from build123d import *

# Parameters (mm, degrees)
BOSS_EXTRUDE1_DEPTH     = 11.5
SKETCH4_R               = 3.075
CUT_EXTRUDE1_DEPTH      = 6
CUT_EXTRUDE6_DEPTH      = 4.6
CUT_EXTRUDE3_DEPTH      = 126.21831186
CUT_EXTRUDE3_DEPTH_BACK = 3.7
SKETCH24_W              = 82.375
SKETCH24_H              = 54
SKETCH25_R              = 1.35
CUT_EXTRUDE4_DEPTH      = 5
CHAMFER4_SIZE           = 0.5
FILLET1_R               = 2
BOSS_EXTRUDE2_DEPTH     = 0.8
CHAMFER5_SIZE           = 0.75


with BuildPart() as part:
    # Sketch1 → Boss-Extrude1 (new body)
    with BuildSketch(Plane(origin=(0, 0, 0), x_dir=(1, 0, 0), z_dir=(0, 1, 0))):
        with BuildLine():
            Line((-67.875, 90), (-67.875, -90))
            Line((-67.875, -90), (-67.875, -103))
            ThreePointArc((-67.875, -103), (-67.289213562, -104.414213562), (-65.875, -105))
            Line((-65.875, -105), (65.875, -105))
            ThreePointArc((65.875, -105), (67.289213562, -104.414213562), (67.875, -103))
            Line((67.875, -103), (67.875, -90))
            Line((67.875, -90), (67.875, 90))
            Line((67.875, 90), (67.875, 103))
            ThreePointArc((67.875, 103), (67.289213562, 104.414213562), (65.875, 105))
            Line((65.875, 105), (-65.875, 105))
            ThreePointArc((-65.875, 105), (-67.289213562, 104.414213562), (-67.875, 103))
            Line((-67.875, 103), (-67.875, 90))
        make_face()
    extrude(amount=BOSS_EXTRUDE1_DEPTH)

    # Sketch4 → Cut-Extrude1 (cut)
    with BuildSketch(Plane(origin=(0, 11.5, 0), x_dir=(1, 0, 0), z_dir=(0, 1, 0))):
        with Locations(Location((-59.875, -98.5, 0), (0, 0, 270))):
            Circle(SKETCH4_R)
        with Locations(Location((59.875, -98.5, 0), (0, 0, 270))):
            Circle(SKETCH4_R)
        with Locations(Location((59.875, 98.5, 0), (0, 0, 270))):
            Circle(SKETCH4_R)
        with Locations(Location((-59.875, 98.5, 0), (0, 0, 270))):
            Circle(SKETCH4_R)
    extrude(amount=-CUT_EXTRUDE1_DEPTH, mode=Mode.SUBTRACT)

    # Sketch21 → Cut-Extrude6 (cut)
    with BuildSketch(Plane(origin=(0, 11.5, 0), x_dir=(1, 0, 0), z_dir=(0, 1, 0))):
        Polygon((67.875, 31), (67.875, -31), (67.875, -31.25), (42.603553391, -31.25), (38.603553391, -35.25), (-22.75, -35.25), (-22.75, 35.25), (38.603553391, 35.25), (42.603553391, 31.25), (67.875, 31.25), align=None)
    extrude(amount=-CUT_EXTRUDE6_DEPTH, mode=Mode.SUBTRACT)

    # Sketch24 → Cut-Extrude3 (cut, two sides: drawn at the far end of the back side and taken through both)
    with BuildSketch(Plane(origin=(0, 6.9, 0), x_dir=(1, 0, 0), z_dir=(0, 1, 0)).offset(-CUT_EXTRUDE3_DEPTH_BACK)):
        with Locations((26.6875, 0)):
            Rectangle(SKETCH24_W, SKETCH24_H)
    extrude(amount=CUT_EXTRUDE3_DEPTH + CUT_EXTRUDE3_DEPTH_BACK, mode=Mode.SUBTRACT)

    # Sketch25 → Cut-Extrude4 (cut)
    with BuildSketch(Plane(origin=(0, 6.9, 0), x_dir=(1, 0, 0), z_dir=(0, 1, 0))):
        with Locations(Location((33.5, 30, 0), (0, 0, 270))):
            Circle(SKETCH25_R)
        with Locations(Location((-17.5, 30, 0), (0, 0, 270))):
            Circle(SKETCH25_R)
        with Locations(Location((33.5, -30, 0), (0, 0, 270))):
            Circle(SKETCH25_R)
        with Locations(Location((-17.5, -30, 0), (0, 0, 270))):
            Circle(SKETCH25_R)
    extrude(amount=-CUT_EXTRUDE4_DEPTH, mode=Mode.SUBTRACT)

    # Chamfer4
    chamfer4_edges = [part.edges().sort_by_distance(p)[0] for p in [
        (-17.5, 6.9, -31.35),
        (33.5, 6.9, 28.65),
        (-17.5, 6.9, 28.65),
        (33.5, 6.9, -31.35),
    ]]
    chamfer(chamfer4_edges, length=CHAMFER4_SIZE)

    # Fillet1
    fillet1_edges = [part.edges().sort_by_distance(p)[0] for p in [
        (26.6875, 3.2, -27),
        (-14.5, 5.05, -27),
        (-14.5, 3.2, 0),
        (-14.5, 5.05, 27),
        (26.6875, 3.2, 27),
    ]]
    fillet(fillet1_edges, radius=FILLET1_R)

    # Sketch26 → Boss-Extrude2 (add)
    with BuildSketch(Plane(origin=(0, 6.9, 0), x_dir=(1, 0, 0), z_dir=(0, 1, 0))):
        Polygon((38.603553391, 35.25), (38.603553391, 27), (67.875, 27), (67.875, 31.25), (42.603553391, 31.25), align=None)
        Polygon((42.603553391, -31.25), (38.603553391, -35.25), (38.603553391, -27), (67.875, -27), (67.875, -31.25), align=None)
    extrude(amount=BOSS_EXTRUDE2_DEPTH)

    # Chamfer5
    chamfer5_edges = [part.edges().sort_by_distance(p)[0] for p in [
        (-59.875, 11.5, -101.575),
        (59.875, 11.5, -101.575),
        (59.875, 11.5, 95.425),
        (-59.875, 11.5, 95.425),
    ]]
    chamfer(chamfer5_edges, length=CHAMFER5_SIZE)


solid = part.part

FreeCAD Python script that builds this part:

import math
import FreeCAD as App
import Part
import Sketcher

V = App.Vector


def edges_at(feature, points):
    """Names of the edges that pass closest to the given points."""
    edges = feature.Shape.Edges
    near = lambda p: min(range(len(edges)), key=lambda i: edges[i].distToShape(Part.Vertex(*p))[0])
    return sorted({f"Edge{near(p) + 1}" for p in points})

doc = App.newDocument("Part")
body = doc.addObject("PartDesign::Body", "Body")

# Sketch on XZ plane
sketch1 = doc.addObject("Sketcher::SketchObject", "Sketch")
body.addObject(sketch1)
sketch1.AttachmentSupport = (doc.XZ_Plane, [""])
sketch1.MapMode = "FlatFace"
sketch1.addGeometry([
    Part.ArcOfCircle(Part.Circle(V(-65.875, 103, 0), V(0, 0, 1), 2), math.radians(90), math.radians(180)),  # 0
    Part.LineSegment(V(-65.875, 105, 0), V(65.875, 105, 0)),  # 1
    Part.ArcOfCircle(Part.Circle(V(65.875, 103, 0), V(0, 0, 1), 2), math.radians(0), math.radians(90)),  # 2
    Part.LineSegment(V(67.875, 103, 0), V(67.875, -103, 0)),  # 3
    Part.ArcOfCircle(Part.Circle(V(65.875, -103, 0), V(0, 0, 1), 2), math.radians(-90), math.radians(0)),  # 4
    Part.LineSegment(V(65.875, -105, 0), V(-65.875, -105, 0)),  # 5
    Part.ArcOfCircle(Part.Circle(V(-65.875, -103, 0), V(0, 0, 1), 2), math.radians(-180), math.radians(-90)),  # 6
    Part.LineSegment(V(-67.875, -103, 0), V(-67.875, 103, 0)),  # 7
], False)
sketch1.addConstraint([
    Sketcher.Constraint("Tangent", 0, 1, 1, 1),
    Sketcher.Constraint("Tangent", 1, 2, 2, 2),
    Sketcher.Constraint("Tangent", 2, 1, 3, 1),
    Sketcher.Constraint("Tangent", 3, 2, 4, 2),
    Sketcher.Constraint("Tangent", 4, 1, 5, 1),
    Sketcher.Constraint("Tangent", 5, 2, 6, 2),
    Sketcher.Constraint("Tangent", 6, 1, 7, 1),
    Sketcher.Constraint("Tangent", 7, 2, 0, 2),
    Sketcher.Constraint("Horizontal", 1),
    Sketcher.Constraint("Vertical", 3),
    Sketcher.Constraint("Horizontal", 5),
    Sketcher.Constraint("Vertical", 7),
    Sketcher.Constraint("Equal", 0, 2),
    Sketcher.Constraint("Equal", 2, 4),
    Sketcher.Constraint("Equal", 4, 6),
    Sketcher.Constraint("Symmetric", 0, 3, 4, 3, -1, 1),
    Sketcher.Constraint("Radius", 0, 2.0),
    Sketcher.Constraint("DistanceY", 3, 2, 3, 1, 206.0),
    Sketcher.Constraint("DistanceX", 1, 1, 1, 2, 131.75),
])
pad1 = doc.addObject("PartDesign::Pad", "Pad")
body.addObject(pad1)
pad1.Profile = sketch1
pad1.Length = 11.5
pad1.Reversed = True

# Sketch on XZ plane
sketch2 = doc.addObject("Sketcher::SketchObject", "Sketch001")
body.addObject(sketch2)
sketch2.AttachmentSupport = (doc.XZ_Plane, [""])
sketch2.MapMode = "FlatFace"
sketch2.AttachmentOffset = App.Placement(V(0, 0, -11.5), App.Rotation())
sketch2.addGeometry([
    Part.Circle(V(-59.875, 98.5, 0), V(0, 0, 1), 3.075),
    Part.Circle(V(59.875, 98.5, 0), V(0, 0, 1), 3.075),
    Part.Circle(V(59.875, -98.5, 0), V(0, 0, 1), 3.075),
    Part.Circle(V(-59.875, -98.5, 0), V(0, 0, 1), 3.075),
], False)
sketch2.addConstraint([
    Sketcher.Constraint("Equal", 0, 1),
    Sketcher.Constraint("Equal", 1, 2),
    Sketcher.Constraint("Equal", 2, 3),
    Sketcher.Constraint("Symmetric", 0, 3, 2, 3, -1, 1),
    Sketcher.Constraint("Symmetric", 1, 3, 3, 3, -1, 1),
    Sketcher.Constraint("Symmetric", 0, 3, 1, 3, -2),
    Sketcher.Constraint("Diameter", 0, 6.15),
    Sketcher.Constraint("DistanceY", 2, 3, 1, 3, 197.0),
    Sketcher.Constraint("DistanceX", 0, 3, 1, 3, 119.75),
])
pocket1 = doc.addObject("PartDesign::Pocket", "Pocket")
body.addObject(pocket1)
pocket1.Profile = sketch2
pocket1.Length = 6
pocket1.Reversed = True

# Sketch on XZ plane
sketch3 = doc.addObject("Sketcher::SketchObject", "Sketch002")
body.addObject(sketch3)
sketch3.AttachmentSupport = (doc.XZ_Plane, [""])
sketch3.MapMode = "FlatFace"
sketch3.AttachmentOffset = App.Placement(V(0, 0, -11.5), App.Rotation())
sketch3.addGeometry([
    Part.LineSegment(V(67.875, 31.25, 0), V(67.875, -31.25, 0)),  # 0
    Part.LineSegment(V(67.875, -31.25, 0), V(42.603553, -31.25, 0)),  # 1
    Part.LineSegment(V(42.603553, -31.25, 0), V(38.603553, -35.25, 0)),  # 2
    Part.LineSegment(V(38.603553, -35.25, 0), V(-22.75, -35.25, 0)),  # 3
    Part.LineSegment(V(-22.75, -35.25, 0), V(-22.75, 35.25, 0)),  # 4
    Part.LineSegment(V(-22.75, 35.25, 0), V(38.603553, 35.25, 0)),  # 5
    Part.LineSegment(V(38.603553, 35.25, 0), V(42.603553, 31.25, 0)),  # 6
    Part.LineSegment(V(42.603553, 31.25, 0), V(67.875, 31.25, 0)),  # 7
], False)
sketch3.addConstraint([
    Sketcher.Constraint("Coincident", 0, 2, 1, 1),
    Sketcher.Constraint("Coincident", 1, 2, 2, 1),
    Sketcher.Constraint("Coincident", 2, 2, 3, 1),
    Sketcher.Constraint("Coincident", 3, 2, 4, 1),
    Sketcher.Constraint("Coincident", 4, 2, 5, 1),
    Sketcher.Constraint("Coincident", 5, 2, 6, 1),
    Sketcher.Constraint("Coincident", 6, 2, 7, 1),
    Sketcher.Constraint("Coincident", 7, 2, 0, 1),
    Sketcher.Constraint("Vertical", 0),
    Sketcher.Constraint("Horizontal", 1),
    Sketcher.Constraint("Horizontal", 3),
    Sketcher.Constraint("Vertical", 4),
    Sketcher.Constraint("Horizontal", 5),
    Sketcher.Constraint("Horizontal", 7),
    Sketcher.Constraint("Symmetric", 2, 2, 5, 2, -1),
    Sketcher.Constraint("Symmetric", 1, 2, 6, 2, -1),
    Sketcher.Constraint("Perpendicular", 2, 6),
    Sketcher.Constraint("DistanceY", 0, 2, 0, 1, 62.5),
    Sketcher.Constraint("DistanceY", 4, 1, 4, 2, 70.5),
    Sketcher.Constraint("DistanceX", 3, 2, -1, 1, 22.75),
    Sketcher.Constraint("DistanceX", -1, 1, 0, 2, 67.875),
    Sketcher.Constraint("DistanceX", 1, 2, 1, 1, 25.271447),
])
pocket2 = doc.addObject("PartDesign::Pocket", "Pocket001")
body.addObject(pocket2)
pocket2.Profile = sketch3
pocket2.Length = 4.6
pocket2.Reversed = True

# Sketch on XZ plane
sketch4 = doc.addObject("Sketcher::SketchObject", "Sketch003")
body.addObject(sketch4)
sketch4.AttachmentSupport = (doc.XZ_Plane, [""])
sketch4.MapMode = "FlatFace"
sketch4.AttachmentOffset = App.Placement(V(0, 0, -6.9), App.Rotation())
sketch4.addGeometry([
    Part.LineSegment(V(-14.5, -27, 0), V(-14.5, 27, 0)),
    Part.LineSegment(V(-14.5, 27, 0), V(67.875, 27, 0)),
    Part.LineSegment(V(67.875, 27, 0), V(67.875, -27, 0)),
    Part.LineSegment(V(67.875, -27, 0), V(-14.5, -27, 0)),
], False)
sketch4.addConstraint([
    Sketcher.Constraint("Coincident", 0, 2, 1, 1),
    Sketcher.Constraint("Coincident", 1, 2, 2, 1),
    Sketcher.Constraint("Coincident", 2, 2, 3, 1),
    Sketcher.Constraint("Coincident", 3, 2, 0, 1),
    Sketcher.Constraint("Vertical", 0),
    Sketcher.Constraint("Horizontal", 1),
    Sketcher.Constraint("Vertical", 2),
    Sketcher.Constraint("Horizontal", 3),
    Sketcher.Constraint("DistanceY", 0, 1, 0, 2, 54.0),
    Sketcher.Constraint("DistanceY", -1, 1, 0, 2, 27.0),
    Sketcher.Constraint("DistanceX", 0, 2, -1, 1, 14.5),
    Sketcher.Constraint("DistanceX", 1, 1, 1, 2, 82.375),
])
pocket3 = doc.addObject("PartDesign::Pocket", "Pocket002")
body.addObject(pocket3)
pocket3.Profile = sketch4
pocket3.Type = "TwoLengths"
pocket3.Length = 126.218312
pocket3.Length2 = 3.7

# Sketch on XZ plane
sketch5 = doc.addObject("Sketcher::SketchObject", "Sketch004")
body.addObject(sketch5)
sketch5.AttachmentSupport = (doc.XZ_Plane, [""])
sketch5.MapMode = "FlatFace"
sketch5.AttachmentOffset = App.Placement(V(0, 0, -6.9), App.Rotation())
sketch5.addGeometry([
    Part.Circle(V(33.5, -30, 0), V(0, 0, 1), 1.35),
    Part.Circle(V(-17.5, -30, 0), V(0, 0, 1), 1.35),
    Part.Circle(V(33.5, 30, 0), V(0, 0, 1), 1.35),
    Part.Circle(V(-17.5, 30, 0), V(0, 0, 1), 1.35),
], False)
sketch5.addConstraint([
    Sketcher.Constraint("Equal", 0, 1),
    Sketcher.Constraint("Equal", 1, 2),
    Sketcher.Constraint("Equal", 2, 3),
    Sketcher.Constraint("Symmetric", 0, 3, 2, 3, -1),
    Sketcher.Constraint("Symmetric", 1, 3, 3, 3, -1),
    Sketcher.Constraint("Horizontal", 0, 3, 1, 3),
    Sketcher.Constraint("Diameter", 0, 2.7),
    Sketcher.Constraint("DistanceY", 0, 3, -1, 1, 30.0),
    Sketcher.Constraint("DistanceX", 1, 3, 0, 3, 51.0),
    Sketcher.Constraint("DistanceX", -1, 1, 0, 3, 33.5),
])
pocket4 = doc.addObject("PartDesign::Pocket", "Pocket003")
body.addObject(pocket4)
pocket4.Profile = sketch5
pocket4.Length = 5
pocket4.Reversed = True
doc.recompute()

chamfer = doc.addObject("PartDesign::Chamfer", "Chamfer")
body.addObject(chamfer)
chamfer.Base = (pocket4, edges_at(pocket4, [
    (-17.5, 6.9, -31.35),
    (33.5, 6.9, 28.65),
    (-17.5, 6.9, 28.65),
    (33.5, 6.9, -31.35),
]))
chamfer.Size = 0.5
doc.recompute()

fillet = doc.addObject("PartDesign::Fillet", "Fillet")
body.addObject(fillet)
fillet.Base = (chamfer, edges_at(chamfer, [
    (26.688, 3.2, -27),
    (-14.5, 5.05, -27),
    (-14.5, 3.2, 0),
    (-14.5, 5.05, 27),
    (26.688, 3.2, 27),
]))
fillet.Radius = 2

# Sketch on XZ plane
sketch6 = doc.addObject("Sketcher::SketchObject", "Sketch005")
body.addObject(sketch6)
sketch6.AttachmentSupport = (doc.XZ_Plane, [""])
sketch6.MapMode = "FlatFace"
sketch6.AttachmentOffset = App.Placement(V(0, 0, -6.9), App.Rotation())
sketch6.addGeometry([
    Part.LineSegment(V(38.603553, -35.25, 0), V(38.603553, -27, 0)),  # 0
    Part.LineSegment(V(38.603553, -27, 0), V(67.875, -27, 0)),  # 1
    Part.LineSegment(V(67.875, -27, 0), V(67.875, -31.25, 0)),  # 2
    Part.LineSegment(V(67.875, -31.25, 0), V(42.603553, -31.25, 0)),  # 3
    Part.LineSegment(V(42.603553, -31.25, 0), V(38.603553, -35.25, 0)),  # 4
    Part.LineSegment(V(38.603553, 35.25, 0), V(42.603553, 31.25, 0)),  # 5
    Part.LineSegment(V(42.603553, 31.25, 0), V(67.875, 31.25, 0)),  # 6
    Part.LineSegment(V(67.875, 31.25, 0), V(67.875, 27, 0)),  # 7
    Part.LineSegment(V(67.875, 27, 0), V(38.603553, 27, 0)),  # 8
    Part.LineSegment(V(38.603553, 27, 0), V(38.603553, 35.25, 0)),  # 9
], False)
sketch6.addConstraint([
    Sketcher.Constraint("Coincident", 0, 2, 1, 1),
    Sketcher.Constraint("Coincident", 1, 2, 2, 1),
    Sketcher.Constraint("Coincident", 2, 2, 3, 1),
    Sketcher.Constraint("Coincident", 3, 2, 4, 1),
    Sketcher.Constraint("Coincident", 4, 2, 0, 1),
    Sketcher.Constraint("Coincident", 5, 2, 6, 1),
    Sketcher.Constraint("Coincident", 6, 2, 7, 1),
    Sketcher.Constraint("Coincident", 7, 2, 8, 1),
    Sketcher.Constraint("Coincident", 8, 2, 9, 1),
    Sketcher.Constraint("Coincident", 9, 2, 5, 1),
    Sketcher.Constraint("Vertical", 0),
    Sketcher.Constraint("Horizontal", 1),
    Sketcher.Constraint("Vertical", 2),
    Sketcher.Constraint("Horizontal", 3),
    Sketcher.Constraint("Horizontal", 6),
    Sketcher.Constraint("Vertical", 7),
    Sketcher.Constraint("Horizontal", 8),
    Sketcher.Constraint("Vertical", 9),
    Sketcher.Constraint("Symmetric", 3, 2, 5, 2, -1),
    Sketcher.Constraint("Symmetric", 1, 2, 7, 2, -1),
    Sketcher.Constraint("Symmetric", 4, 2, 9, 2, -1),
    Sketcher.Constraint("Perpendicular", 4, 5),
    Sketcher.Constraint("DistanceY", 0, 2, -1, 1, 27.0),
    Sketcher.Constraint("DistanceX", 0, 2, 3, 2, 4.0),
    Sketcher.Constraint("DistanceY", 0, 1, 0, 2, 8.25),
    Sketcher.Constraint("DistanceX", -1, 1, 1, 2, 67.875),
    Sketcher.Constraint("DistanceX", 1, 1, 1, 2, 29.271447),
])
pad2 = doc.addObject("PartDesign::Pad", "Pad001")
body.addObject(pad2)
pad2.Profile = sketch6
pad2.Length = 0.8
pad2.Reversed = True
doc.recompute()

chamfer2 = doc.addObject("PartDesign::Chamfer", "Chamfer001")
body.addObject(chamfer2)
chamfer2.Base = (pad2, edges_at(pad2, [
    (-59.875, 11.5, -101.575),
    (59.875, 11.5, -101.575),
    (59.875, 11.5, 95.425),
    (-59.875, 11.5, 95.425),
]))
chamfer2.Size = 0.75

doc.recompute()
